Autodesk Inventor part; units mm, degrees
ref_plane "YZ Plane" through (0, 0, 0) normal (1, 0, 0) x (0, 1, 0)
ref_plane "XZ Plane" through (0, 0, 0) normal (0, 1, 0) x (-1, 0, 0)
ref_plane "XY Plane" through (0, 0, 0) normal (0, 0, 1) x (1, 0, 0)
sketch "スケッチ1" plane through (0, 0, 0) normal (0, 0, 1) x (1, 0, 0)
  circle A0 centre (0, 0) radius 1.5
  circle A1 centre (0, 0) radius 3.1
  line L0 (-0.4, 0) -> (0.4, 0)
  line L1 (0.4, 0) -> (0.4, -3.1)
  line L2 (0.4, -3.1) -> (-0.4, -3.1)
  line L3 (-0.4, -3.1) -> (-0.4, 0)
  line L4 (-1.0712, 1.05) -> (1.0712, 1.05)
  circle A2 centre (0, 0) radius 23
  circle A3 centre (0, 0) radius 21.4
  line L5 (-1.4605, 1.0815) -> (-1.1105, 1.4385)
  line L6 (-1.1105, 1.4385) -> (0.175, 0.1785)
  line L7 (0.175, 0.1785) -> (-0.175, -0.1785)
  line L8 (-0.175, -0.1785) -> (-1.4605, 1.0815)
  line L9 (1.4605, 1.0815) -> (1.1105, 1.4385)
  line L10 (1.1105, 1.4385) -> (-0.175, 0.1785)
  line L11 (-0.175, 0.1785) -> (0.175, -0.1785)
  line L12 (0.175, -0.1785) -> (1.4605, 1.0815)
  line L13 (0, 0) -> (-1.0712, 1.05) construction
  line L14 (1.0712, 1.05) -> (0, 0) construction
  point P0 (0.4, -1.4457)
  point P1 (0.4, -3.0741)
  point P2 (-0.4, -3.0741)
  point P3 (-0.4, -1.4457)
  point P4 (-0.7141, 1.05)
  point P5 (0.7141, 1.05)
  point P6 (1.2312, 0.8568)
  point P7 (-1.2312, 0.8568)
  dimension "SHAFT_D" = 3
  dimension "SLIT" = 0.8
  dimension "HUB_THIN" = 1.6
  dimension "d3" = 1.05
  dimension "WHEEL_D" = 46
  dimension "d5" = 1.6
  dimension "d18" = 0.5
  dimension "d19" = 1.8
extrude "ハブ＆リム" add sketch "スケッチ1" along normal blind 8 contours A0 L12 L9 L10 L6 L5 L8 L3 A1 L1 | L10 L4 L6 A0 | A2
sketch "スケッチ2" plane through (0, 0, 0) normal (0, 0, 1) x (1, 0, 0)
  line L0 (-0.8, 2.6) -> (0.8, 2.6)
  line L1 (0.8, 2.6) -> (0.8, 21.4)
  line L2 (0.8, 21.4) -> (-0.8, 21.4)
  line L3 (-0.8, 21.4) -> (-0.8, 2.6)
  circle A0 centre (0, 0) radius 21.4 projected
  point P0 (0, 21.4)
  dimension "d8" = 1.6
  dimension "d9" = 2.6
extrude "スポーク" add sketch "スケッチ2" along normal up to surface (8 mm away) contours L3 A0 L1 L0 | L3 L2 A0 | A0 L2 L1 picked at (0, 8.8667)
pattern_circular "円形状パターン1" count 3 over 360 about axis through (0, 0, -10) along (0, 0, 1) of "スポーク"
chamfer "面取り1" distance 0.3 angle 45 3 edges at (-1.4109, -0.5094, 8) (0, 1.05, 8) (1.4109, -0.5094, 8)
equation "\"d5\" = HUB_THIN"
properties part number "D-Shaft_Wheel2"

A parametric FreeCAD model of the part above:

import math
import FreeCAD as App
import Part
import Sketcher


def edges_at(feature, points):
    """Names of the edges that pass closest to the given points."""
    edges = feature.Shape.Edges
    near = lambda p: min(range(len(edges)), key=lambda i: edges[i].distToShape(Part.Vertex(*p))[0])
    return sorted({f"Edge{near(p) + 1}" for p in points})


def add_polygon(sketch, points):
    """Adds a closed chain of lines whose ends are joined by coincident constraints."""
    first, n = sketch.GeometryCount, len(points)
    for a, b in zip(points, points[1:] + points[:1]):
        sketch.addGeometry(Part.LineSegment(App.Vector(*a, 0), App.Vector(*b, 0)), False)
    for i in range(n):
        sketch.addConstraint(Sketcher.Constraint("Coincident", first + i, 2, first + (i + 1) % n, 1))

doc = App.newDocument("Part")
params = doc.addObject("Spreadsheet::Sheet", "Params")
for row, (alias, value) in enumerate([
    ("sketch1_diameter", "46 mm"),
    ("sketch1_radius", "1.5 mm"),
    ("sketch1_length", "0.5 mm"),
    ("sketch1_diameter2", "42.8 mm"),
    ("sketch1_radius2", "3.1 mm"),
    ("pad1_length", "8 mm"),
    ("sketch2_width", "1.6 mm"),
    ("sketch2_height", "18.8 mm"),
    ("pad2_length", "8 mm"),
    ("chamfer_size", "0.3 mm"),
], start=1):
    params.set(f"A{row}", alias)
    params.set(f"B{row}", "=" + value)
    params.setAlias(f"B{row}", alias)

body = doc.addObject("PartDesign::Body", "Body")
body.AllowCompound = True

# Sketch on XY plane
sketch1 = doc.addObject("Sketcher::SketchObject", "Sketch")
body.addObject(sketch1)
sketch1.AttachmentSupport = (doc.XY_Plane, [""])
sketch1.MapMode = "FlatFace"
sketch1.addGeometry([
    Part.ArcOfCircle(Part.Circle(App.Vector(0, 0, 0), App.Vector(0, 0, 1), 1.5), math.radians(-75), math.radians(35)),  # 0
    Part.LineSegment(App.Vector(0.4, -1.45, 0), App.Vector(0.4, -3.07, 0)),  # 1
    Part.ArcOfCircle(Part.Circle(App.Vector(0, 0, 0), App.Vector(0, 0, 1), 3.1), math.radians(-83), math.radians(263)),  # 2
    Part.LineSegment(App.Vector(-0.4, -3.07, 0), App.Vector(-0.4, -1.45, 0)),  # 3
    Part.ArcOfCircle(Part.Circle(App.Vector(0, 0, 0), App.Vector(0, 0, 1), 1.5), math.radians(145), math.radians(255)),  # 4
    Part.LineSegment(App.Vector(-1.23, 0.86, 0), App.Vector(-1.46, 1.08, 0)),  # 5
    Part.LineSegment(App.Vector(-1.46, 1.08, 0), App.Vector(-1.11, 1.44, 0)),  # 6
    Part.LineSegment(App.Vector(-1.11, 1.44, 0), App.Vector(-0.71, 1.05, 0)),  # 7
    Part.LineSegment(App.Vector(-0.71, 1.05, 0), App.Vector(0.71, 1.05, 0)),  # 8
    Part.LineSegment(App.Vector(0.71, 1.05, 0), App.Vector(1.11, 1.44, 0)),  # 9
    Part.LineSegment(App.Vector(1.11, 1.44, 0), App.Vector(1.46, 1.08, 0)),  # 10
    Part.LineSegment(App.Vector(1.46, 1.08, 0), App.Vector(1.23, 0.86, 0)),  # 11
    Part.Circle(App.Vector(0, 0, 0), App.Vector(0, 0, 1), 23),  # 12
    Part.Circle(App.Vector(0, 0, 0), App.Vector(0, 0, 1), 21.4),  # 13
], False)
sketch1.addConstraint([
    Sketcher.Constraint("Coincident", 0, 1, 1, 1),
    Sketcher.Constraint("Coincident", 1, 2, 2, 1),
    Sketcher.Constraint("Coincident", 2, 2, 3, 1),
    Sketcher.Constraint("Coincident", 3, 2, 4, 2),
    Sketcher.Constraint("Coincident", 4, 1, 5, 1),
    Sketcher.Constraint("Coincident", 5, 2, 6, 1),
    Sketcher.Constraint("Coincident", 6, 2, 7, 1),
    Sketcher.Constraint("Coincident", 7, 2, 8, 1),
    Sketcher.Constraint("Coincident", 8, 2, 9, 1),
    Sketcher.Constraint("Coincident", 9, 2, 10, 1),
    Sketcher.Constraint("Coincident", 10, 2, 11, 1),
    Sketcher.Constraint("Coincident", 11, 2, 0, 2),
    Sketcher.Constraint("Vertical", 1),
    Sketcher.Constraint("Vertical", 3),
    Sketcher.Constraint("Horizontal", 8),
    Sketcher.Constraint("Coincident", 0, 3, -1, 1),
    Sketcher.Constraint("Coincident", 2, 3, -1, 1),
    Sketcher.Constraint("Coincident", 4, 3, -1, 1),
    Sketcher.Constraint("Coincident", 12, 3, -1, 1),
    Sketcher.Constraint("Coincident", 13, 3, -1, 1),
    Sketcher.Constraint("Equal", 0, 4),
    Sketcher.Constraint("Symmetric", 6, 2, 9, 2, -2),
    Sketcher.Constraint("Symmetric", 5, 2, 10, 2, -2),
    Sketcher.Constraint("Perpendicular", 5, 6),
    Sketcher.Constraint("Perpendicular", 6, 7),
    Sketcher.Constraint("Perpendicular", 9, 10),
    Sketcher.Constraint("Perpendicular", 10, 11),
    Sketcher.Constraint("Horizontal", 1, 2, 2, 2),
    Sketcher.Constraint("Diameter", 12, 46.0),
    Sketcher.Constraint("Radius", 0, 1.5),
    Sketcher.Constraint("Distance", 6, 0.5),
    Sketcher.Constraint("Diameter", 13, 42.8),
    Sketcher.Constraint("Radius", 2, 3.1),
    Sketcher.Constraint("DistanceX", 2, 2, 1, 2, 0.8),
    Sketcher.Constraint("DistanceY", -1, 1, 7, 2, 1.05),
    Sketcher.Constraint("DistanceX", 5, 2, 6, 2, 0.35),
    Sketcher.Constraint("Distance", 5, 0.321),
    Sketcher.Constraint("Distance", 7, 0.555),
])
sketch1.setExpression("Constraints[28]", "Params.sketch1_diameter")
sketch1.setExpression("Constraints[29]", "Params.sketch1_radius")
sketch1.setExpression("Constraints[30]", "Params.sketch1_length")
sketch1.setExpression("Constraints[31]", "Params.sketch1_diameter2")
sketch1.setExpression("Constraints[32]", "Params.sketch1_radius2")
pad1 = doc.addObject("PartDesign::Pad", "Pad")
body.addObject(pad1)
pad1.Profile = sketch1
pad1.setExpression("Length", "Params.pad1_length")

# Sketch on XY plane
sketch2 = doc.addObject("Sketcher::SketchObject", "Sketch001")
body.addObject(sketch2)
sketch2.AttachmentSupport = (doc.XY_Plane, [""])
sketch2.MapMode = "FlatFace"
add_polygon(sketch2, [(-0.8, 2.6), (0.8, 2.6), (0.8, 21.4), (-0.8, 21.4)])  # lines 0-3
sketch2.addConstraint([
    Sketcher.Constraint("Horizontal", 0),
    Sketcher.Constraint("Vertical", 1),
    Sketcher.Constraint("Horizontal", 2),
    Sketcher.Constraint("Vertical", 3),
    Sketcher.Constraint("DistanceX", 0, 1, 0, 2, 1.6),
    Sketcher.Constraint("DistanceY", -1, 1, 0, 2, 2.6),
    Sketcher.Constraint("DistanceY", 1, 1, 1, 2, 18.8),
    Sketcher.Constraint("DistanceX", -1, 1, 0, 2, 0.8),
])
sketch2.setExpression("Constraints[8]", "Params.sketch2_width")
sketch2.setExpression("Constraints[10]", "Params.sketch2_height")
pad2 = doc.addObject("PartDesign::Pad", "Pad001")
body.addObject(pad2)
pad2.Profile = sketch2
pad2.setExpression("Length", "Params.pad2_length")
doc.recompute()

polarpattern = doc.addObject("PartDesign::PolarPattern", "PolarPattern")
body.addObject(polarpattern)
polarpattern.Originals = [pad2]
polarpattern.Axis = (doc.Z_Axis, [""])
polarpattern.Angle = 360
polarpattern.Occurrences = 3
body.Tip = polarpattern
doc.recompute()

chamfer = doc.addObject("PartDesign::Chamfer", "Chamfer")
body.addObject(chamfer)
chamfer.Base = (polarpattern, edges_at(polarpattern, [(-1.411, -0.509, 8), (0, 1.05, 8), (1.411, -0.509, 8)]))
chamfer.setExpression("Size", "Params.chamfer_size")

doc.recompute()
